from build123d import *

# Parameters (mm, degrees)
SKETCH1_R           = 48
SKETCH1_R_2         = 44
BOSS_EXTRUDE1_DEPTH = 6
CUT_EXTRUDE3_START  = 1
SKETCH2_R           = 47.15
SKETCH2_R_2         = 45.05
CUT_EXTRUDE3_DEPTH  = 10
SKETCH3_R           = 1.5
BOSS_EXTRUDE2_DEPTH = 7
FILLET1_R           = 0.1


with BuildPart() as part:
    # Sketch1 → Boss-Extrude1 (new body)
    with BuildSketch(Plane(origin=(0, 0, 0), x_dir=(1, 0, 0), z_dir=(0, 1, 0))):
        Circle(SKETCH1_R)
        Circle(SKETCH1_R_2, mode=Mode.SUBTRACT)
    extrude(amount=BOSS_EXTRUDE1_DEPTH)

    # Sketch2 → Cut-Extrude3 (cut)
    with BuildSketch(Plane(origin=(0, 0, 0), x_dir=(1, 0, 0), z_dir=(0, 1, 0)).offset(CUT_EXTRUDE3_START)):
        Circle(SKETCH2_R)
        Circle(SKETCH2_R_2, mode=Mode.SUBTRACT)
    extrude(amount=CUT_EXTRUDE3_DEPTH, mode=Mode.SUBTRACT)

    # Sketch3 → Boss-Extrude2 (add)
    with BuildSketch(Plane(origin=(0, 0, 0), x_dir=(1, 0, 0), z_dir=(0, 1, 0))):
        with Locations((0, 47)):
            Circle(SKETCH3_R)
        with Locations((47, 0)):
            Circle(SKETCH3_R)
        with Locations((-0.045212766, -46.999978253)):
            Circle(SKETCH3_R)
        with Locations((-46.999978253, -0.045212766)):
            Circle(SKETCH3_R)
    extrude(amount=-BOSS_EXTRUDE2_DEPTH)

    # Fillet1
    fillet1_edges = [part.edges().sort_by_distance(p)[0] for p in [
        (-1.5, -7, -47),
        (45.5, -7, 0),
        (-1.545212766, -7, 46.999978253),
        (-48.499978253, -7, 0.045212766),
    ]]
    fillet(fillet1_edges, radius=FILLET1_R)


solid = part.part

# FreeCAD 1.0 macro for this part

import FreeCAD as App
import Part
import Sketcher


def edges_at(feature, points):
    """Names of the edges that pass closest to the given points."""
    edges = feature.Shape.Edges
    near = lambda p: min(range(len(edges)), key=lambda i: edges[i].distToShape(Part.Vertex(*p))[0])
    return sorted({f"Edge{near(p) + 1}" for p in points})

doc = App.newDocument("Part")
body = doc.addObject("PartDesign::Body", "Body")

sketch1 = body.newObject("Sketcher::SketchObject", "Sketch")
sketch1.AttachmentSupport = (doc.getObject("XZ_Plane"), [""])
sketch1.MapMode = "FlatFace"
sketch1.addGeometry([
    Part.Circle(App.Vector(0, 0, 0), App.Vector(0, 0, 1), 48),
    Part.Circle(App.Vector(0, 0, 0), App.Vector(0, 0, 1), 44),
], False)
sketch1.addConstraint([
    Sketcher.Constraint("Coincident", 0, 3, -1, 1),
    Sketcher.Constraint("Coincident", 1, 3, -1, 1),
    Sketcher.Constraint("Diameter", 0, 96.0),
    Sketcher.Constraint("Diameter", 1, 88.0),
])
pad1 = body.newObject("PartDesign::Pad", "Pad")
pad1.Profile = sketch1
pad1.Length = 6
pad1.Reversed = True

sketch2 = body.newObject("Sketcher::SketchObject", "Sketch001")
sketch2.AttachmentSupport = (doc.getObject("XZ_Plane"), [""])
sketch2.MapMode = "FlatFace"
sketch2.AttachmentOffset = App.Placement(App.Vector(0, 0, -1), App.Rotation())
sketch2.addGeometry([
    Part.Circle(App.Vector(0, 0, 0), App.Vector(0, 0, 1), 47.15),
    Part.Circle(App.Vector(0, 0, 0), App.Vector(0, 0, 1), 45.05),
], False)
sketch2.addConstraint([
    Sketcher.Constraint("Coincident", 0, 3, -1, 1),
    Sketcher.Constraint("Coincident", 1, 3, -1, 1),
    Sketcher.Constraint("Diameter", 0, 94.3),
    Sketcher.Constraint("Diameter", 1, 90.1),
])
pocket1 = body.newObject("PartDesign::Pocket", "Pocket")
pocket1.Profile = sketch2
pocket1.Length = 10

sketch3 = body.newObject("Sketcher::SketchObject", "Sketch002")
sketch3.AttachmentSupport = (doc.getObject("XZ_Plane"), [""])
sketch3.MapMode = "FlatFace"
sketch3.addGeometry([
    Part.Circle(App.Vector(0, -47, 0), App.Vector(0, 0, 1), 1.5),
    Part.Circle(App.Vector(47, 0, 0), App.Vector(0, 0, 1), 1.5),
    Part.Circle(App.Vector(-0.045213, 46.999978, 0), App.Vector(0, 0, 1), 1.5),
    Part.Circle(App.Vector(-46.999978, 0.045213, 0), App.Vector(0, 0, 1), 1.5),
], False)
sketch3.addConstraint([
    Sketcher.Constraint("Equal", 0, 1),
    Sketcher.Constraint("Equal", 1, 2),
    Sketcher.Constraint("Equal", 2, 3),
    Sketcher.Constraint("PointOnObject", 0, 3, -2),
    Sketcher.Constraint("PointOnObject", 1, 3, -1),
    Sketcher.Constraint("Diameter", 0, 3.0),
    Sketcher.Constraint("DistanceY", 0, 3, -1, 1, 47.0),
    Sketcher.Constraint("DistanceX", -1, 1, 1, 3, 47.0),
    Sketcher.Constraint("DistanceY", -1, 1, 2, 3, 46.999978),
    Sketcher.Constraint("DistanceX", 3, 3, -1, 1, 46.999978),
    Sketcher.Constraint("DistanceX", 2, 3, -1, 1, 0.045213),
    Sketcher.Constraint("DistanceY", -1, 1, 3, 3, 0.045213),
])
pad2 = body.newObject("PartDesign::Pad", "Pad001")
pad2.Profile = sketch3
pad2.Length = 7
doc.recompute()

fillet = body.newObject("PartDesign::Fillet", "Fillet")
fillet.Base = (pad2, edges_at(pad2, [
    (-1.5, -7, -47),
    (45.5, -7, 0),
    (-1.545, -7, 47),
    (-48.5, -7, 0.045),
]))
fillet.Radius = 0.1

doc.recompute()
